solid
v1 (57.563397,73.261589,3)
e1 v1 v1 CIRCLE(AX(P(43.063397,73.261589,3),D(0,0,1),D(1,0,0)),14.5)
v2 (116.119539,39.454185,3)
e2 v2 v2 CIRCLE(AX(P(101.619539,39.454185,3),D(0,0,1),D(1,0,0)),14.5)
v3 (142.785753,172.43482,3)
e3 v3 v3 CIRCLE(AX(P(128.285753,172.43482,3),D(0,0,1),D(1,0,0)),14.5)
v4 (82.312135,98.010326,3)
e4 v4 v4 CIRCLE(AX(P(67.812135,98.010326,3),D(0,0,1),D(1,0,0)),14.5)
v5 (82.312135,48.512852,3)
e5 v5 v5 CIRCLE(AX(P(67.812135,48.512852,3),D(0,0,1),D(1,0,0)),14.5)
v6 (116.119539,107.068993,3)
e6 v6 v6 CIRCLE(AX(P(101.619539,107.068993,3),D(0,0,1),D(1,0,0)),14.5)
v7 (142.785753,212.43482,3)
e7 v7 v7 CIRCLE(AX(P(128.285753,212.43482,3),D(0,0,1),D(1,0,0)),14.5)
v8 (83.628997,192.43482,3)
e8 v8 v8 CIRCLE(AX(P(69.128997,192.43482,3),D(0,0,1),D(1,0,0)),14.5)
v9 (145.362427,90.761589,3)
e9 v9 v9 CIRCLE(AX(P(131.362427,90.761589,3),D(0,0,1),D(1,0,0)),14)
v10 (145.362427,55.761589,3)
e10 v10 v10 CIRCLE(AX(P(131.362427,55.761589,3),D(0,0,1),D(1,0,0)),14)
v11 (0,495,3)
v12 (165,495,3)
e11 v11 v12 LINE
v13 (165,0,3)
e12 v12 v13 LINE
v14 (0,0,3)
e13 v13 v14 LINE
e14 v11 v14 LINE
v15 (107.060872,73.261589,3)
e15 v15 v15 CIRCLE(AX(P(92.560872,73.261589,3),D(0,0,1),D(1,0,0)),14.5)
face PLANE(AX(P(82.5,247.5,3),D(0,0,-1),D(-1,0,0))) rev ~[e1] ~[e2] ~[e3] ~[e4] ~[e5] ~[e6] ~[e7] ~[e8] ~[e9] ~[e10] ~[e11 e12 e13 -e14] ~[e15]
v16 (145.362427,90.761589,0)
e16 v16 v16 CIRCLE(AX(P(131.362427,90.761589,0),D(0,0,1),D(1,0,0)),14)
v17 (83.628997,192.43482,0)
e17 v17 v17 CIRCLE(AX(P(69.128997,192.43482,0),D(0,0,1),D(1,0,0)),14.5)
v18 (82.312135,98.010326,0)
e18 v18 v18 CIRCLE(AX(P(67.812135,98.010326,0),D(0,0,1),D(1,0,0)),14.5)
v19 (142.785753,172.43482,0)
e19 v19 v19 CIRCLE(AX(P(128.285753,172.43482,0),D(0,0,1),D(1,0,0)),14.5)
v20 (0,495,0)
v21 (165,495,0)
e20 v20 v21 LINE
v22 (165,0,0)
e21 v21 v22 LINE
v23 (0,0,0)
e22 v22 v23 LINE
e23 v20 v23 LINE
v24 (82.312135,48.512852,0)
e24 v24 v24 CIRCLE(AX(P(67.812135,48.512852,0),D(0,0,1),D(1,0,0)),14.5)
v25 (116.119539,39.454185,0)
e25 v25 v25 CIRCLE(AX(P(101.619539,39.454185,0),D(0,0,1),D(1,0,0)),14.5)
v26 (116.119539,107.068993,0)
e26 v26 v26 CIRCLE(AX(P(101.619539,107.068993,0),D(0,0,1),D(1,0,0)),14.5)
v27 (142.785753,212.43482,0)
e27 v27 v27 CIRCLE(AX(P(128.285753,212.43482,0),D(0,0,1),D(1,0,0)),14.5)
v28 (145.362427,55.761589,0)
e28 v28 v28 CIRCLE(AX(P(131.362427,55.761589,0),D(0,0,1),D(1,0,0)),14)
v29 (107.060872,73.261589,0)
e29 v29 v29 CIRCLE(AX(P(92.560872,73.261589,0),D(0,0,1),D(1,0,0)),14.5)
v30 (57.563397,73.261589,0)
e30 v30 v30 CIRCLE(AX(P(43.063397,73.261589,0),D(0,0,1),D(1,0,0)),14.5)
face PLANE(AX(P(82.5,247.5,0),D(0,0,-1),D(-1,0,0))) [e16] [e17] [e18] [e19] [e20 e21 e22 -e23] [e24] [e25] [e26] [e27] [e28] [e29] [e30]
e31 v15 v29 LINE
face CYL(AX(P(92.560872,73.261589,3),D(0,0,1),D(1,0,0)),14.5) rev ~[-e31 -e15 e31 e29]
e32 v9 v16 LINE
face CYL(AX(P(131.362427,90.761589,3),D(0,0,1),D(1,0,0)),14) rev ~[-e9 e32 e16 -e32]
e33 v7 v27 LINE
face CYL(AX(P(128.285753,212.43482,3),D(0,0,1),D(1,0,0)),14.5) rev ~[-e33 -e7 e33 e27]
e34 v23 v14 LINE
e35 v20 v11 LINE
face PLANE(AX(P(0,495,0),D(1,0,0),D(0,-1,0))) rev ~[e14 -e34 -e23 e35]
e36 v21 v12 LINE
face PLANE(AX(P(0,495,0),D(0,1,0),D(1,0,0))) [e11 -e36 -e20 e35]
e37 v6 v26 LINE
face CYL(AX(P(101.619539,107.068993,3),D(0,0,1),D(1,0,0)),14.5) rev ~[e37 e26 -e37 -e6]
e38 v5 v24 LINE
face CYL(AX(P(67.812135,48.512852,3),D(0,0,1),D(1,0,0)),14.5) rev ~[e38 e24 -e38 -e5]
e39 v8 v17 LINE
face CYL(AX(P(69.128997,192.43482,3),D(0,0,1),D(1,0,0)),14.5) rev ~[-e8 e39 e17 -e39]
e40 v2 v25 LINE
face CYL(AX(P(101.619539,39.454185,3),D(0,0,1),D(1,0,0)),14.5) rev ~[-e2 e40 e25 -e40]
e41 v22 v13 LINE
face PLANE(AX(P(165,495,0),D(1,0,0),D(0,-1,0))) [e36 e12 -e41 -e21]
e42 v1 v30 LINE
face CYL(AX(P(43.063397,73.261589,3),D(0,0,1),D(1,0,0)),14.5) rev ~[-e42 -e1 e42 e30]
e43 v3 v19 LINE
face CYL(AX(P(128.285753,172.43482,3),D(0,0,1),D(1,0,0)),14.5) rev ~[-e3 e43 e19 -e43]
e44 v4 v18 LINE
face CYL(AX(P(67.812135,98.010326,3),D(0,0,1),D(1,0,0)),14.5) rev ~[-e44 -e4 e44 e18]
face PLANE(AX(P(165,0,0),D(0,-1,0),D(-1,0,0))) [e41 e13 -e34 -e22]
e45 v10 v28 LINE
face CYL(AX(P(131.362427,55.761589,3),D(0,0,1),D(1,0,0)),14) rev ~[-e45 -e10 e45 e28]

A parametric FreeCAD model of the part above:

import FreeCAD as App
import Part
import Sketcher
from FreeCAD import Vector
Q = App.Units.Quantity

doc = App.newDocument("Part")
body = doc.addObject("PartDesign::Body", "Body")

# Sketch on XY plane
sketch1 = doc.addObject("Sketcher::SketchObject", "Sketch")
body.addObject(sketch1)
sketch1.AttachmentSupport = (doc.XY_Plane, [""])
sketch1.MapMode = "FlatFace"
sketch1.addGeometry(Part.LineSegment(Vector(165, 495, 0), Vector(0, 495, 0)), False)
sketch1.addGeometry(Part.LineSegment(Vector(0, 495, 0), Vector(0, 0, 0)), False)
sketch1.addGeometry(Part.LineSegment(Vector(0, 0, 0), Vector(165, 0, 0)), False)
sketch1.addGeometry(Part.LineSegment(Vector(165, 0, 0), Vector(165, 495, 0)), False)
sketch1.addConstraint(Sketcher.Constraint("Coincident", 0, 2, 1, 1))
sketch1.addConstraint(Sketcher.Constraint("Coincident", 1, 2, 2, 1))
sketch1.addConstraint(Sketcher.Constraint("Coincident", 2, 2, 3, 1))
sketch1.addConstraint(Sketcher.Constraint("Coincident", 3, 2, 0, 1))
sketch1.addConstraint(Sketcher.Constraint("Horizontal", 0))
sketch1.addConstraint(Sketcher.Constraint("Vertical", 1))
sketch1.addConstraint(Sketcher.Constraint("Horizontal", 2))
sketch1.addConstraint(Sketcher.Constraint("Vertical", 3))
sketch1.addConstraint(Sketcher.Constraint("Coincident", 1, 2, -1, 1))
sketch1.addConstraint(Sketcher.Constraint("DistanceX", 0, 2, 0, 1, Q("165 mm")))
sketch1.addConstraint(Sketcher.Constraint("DistanceY", 1, 2, 1, 1, Q("495 mm")))
pad1 = doc.addObject("PartDesign::Pad", "Pad")
body.addObject(pad1)
pad1.Profile = sketch1
pad1.Length = 3

# Sketch on XY plane
sketch2 = doc.addObject("Sketcher::SketchObject", "Sketch001")
body.addObject(sketch2)
sketch2.AttachmentSupport = (doc.XY_Plane, [""])
sketch2.MapMode = "FlatFace"
sketch2.AttachmentOffset = App.Placement(Vector(0, 0, 3), App.Rotation())
sketch2.addGeometry(Part.Circle(Vector(69, 192, 0), Vector(0, 0, 1), 14), False)
sketch2.addGeometry(Part.Circle(Vector(43, 73, 0), Vector(0, 0, 1), 14), False)
sketch2.addGeometry(Part.Circle(Vector(68, 98, 0), Vector(0, 0, 1), 14), False)
sketch2.addGeometry(Part.Circle(Vector(68, 49, 0), Vector(0, 0, 1), 14), False)
sketch2.addGeometry(Part.Circle(Vector(93, 73, 0), Vector(0, 0, 1), 14), False)
sketch2.addGeometry(Part.Circle(Vector(102, 107, 0), Vector(0, 0, 1), 14), False)
sketch2.addGeometry(Part.Circle(Vector(102, 39, 0), Vector(0, 0, 1), 14), False)
sketch2.addGeometry(Part.Circle(Vector(128, 172, 0), Vector(0, 0, 1), 14), False)
sketch2.addGeometry(Part.Circle(Vector(128, 212, 0), Vector(0, 0, 1), 14), False)
sketch2.addGeometry(Part.Circle(Vector(131, 91, 0), Vector(0, 0, 1), 14), False)
sketch2.addGeometry(Part.Circle(Vector(131, 56, 0), Vector(0, 0, 1), 14), False)
sketch2.addConstraint(Sketcher.Constraint("Equal", 0, 1))
sketch2.addConstraint(Sketcher.Constraint("Equal", 1, 2))
sketch2.addConstraint(Sketcher.Constraint("Equal", 2, 3))
sketch2.addConstraint(Sketcher.Constraint("Equal", 3, 4))
sketch2.addConstraint(Sketcher.Constraint("Equal", 4, 5))
sketch2.addConstraint(Sketcher.Constraint("Equal", 5, 6))
sketch2.addConstraint(Sketcher.Constraint("Equal", 6, 7))
sketch2.addConstraint(Sketcher.Constraint("Equal", 7, 8))
sketch2.addConstraint(Sketcher.Constraint("Equal", 9, 10))
sketch2.addConstraint(Sketcher.Constraint("Horizontal", 1, 3, 4, 3))
sketch2.addConstraint(Sketcher.Constraint("Vertical", 2, 3, 3, 3))
sketch2.addConstraint(Sketcher.Constraint("Vertical", 5, 3, 6, 3))
sketch2.addConstraint(Sketcher.Constraint("Vertical", 7, 3, 8, 3))
sketch2.addConstraint(Sketcher.Constraint("Vertical", 9, 3, 10, 3))
sketch2.addConstraint(Sketcher.Constraint("Diameter", 0, Q("29 mm")))
sketch2.addConstraint(Sketcher.Constraint("Diameter", 9, Q("28 mm")))
sketch2.addConstraint(Sketcher.Constraint("DistanceY", 7, 3, 0, 3, Q("20 mm")))
sketch2.addConstraint(Sketcher.Constraint("DistanceY", 7, 3, 8, 3, Q("40 mm")))
sketch2.addConstraint(Sketcher.Constraint("DistanceY", 10, 3, 9, 3, Q("35 mm")))
sketch2.addConstraint(Sketcher.Constraint("DistanceY", 4, 3, 9, 3, Q("17.5 mm")))
sketch2.addConstraint(Sketcher.Constraint("DistanceX", 1, 3, 0, 3, Q("26.0656 mm")))
sketch2.addConstraint(Sketcher.Constraint("DistanceY", -1, 1, 0, 3, Q("192.43482 mm")))
sketch2.addConstraint(Sketcher.Constraint("DistanceY", -1, 1, 1, 3, Q("73.261589 mm")))
sketch2.addConstraint(Sketcher.Constraint("DistanceX", -1, 1, 5, 3, Q("101.619539 mm")))
sketch2.addConstraint(Sketcher.Constraint("DistanceY", 3, 3, 0, 3, Q("143.921968 mm")))
sketch2.addConstraint(Sketcher.Constraint("DistanceY", 3, 3, 5, 3, Q("58.556141 mm")))
sketch2.addConstraint(Sketcher.Constraint("DistanceY", 6, 3, 2, 3, Q("58.556141 mm")))
sketch2.addConstraint(Sketcher.Constraint("DistanceY", 6, 3, 5, 3, Q("67.614808 mm")))
sketch2.addConstraint(Sketcher.Constraint("DistanceX", 2, 3, 7, 3, Q("60.473618 mm")))
sketch2.addConstraint(Sketcher.Constraint("DistanceX", 4, 3, 7, 3, Q("35.724881 mm")))
sketch2.addConstraint(Sketcher.Constraint("DistanceX", -1, 1, 0, 3, Q("69.128997 mm")))
sketch2.addConstraint(Sketcher.Constraint("DistanceX", -1, 1, 2, 3, Q("67.812135 mm")))
sketch2.addConstraint(Sketcher.Constraint("DistanceX", -1, 1, 9, 3, Q("131.362427 mm")))
pocket1 = doc.addObject("PartDesign::Pocket", "Pocket")
body.addObject(pocket1)
pocket1.Profile = sketch2
pocket1.Type = "ThroughAll"

doc.recompute()
